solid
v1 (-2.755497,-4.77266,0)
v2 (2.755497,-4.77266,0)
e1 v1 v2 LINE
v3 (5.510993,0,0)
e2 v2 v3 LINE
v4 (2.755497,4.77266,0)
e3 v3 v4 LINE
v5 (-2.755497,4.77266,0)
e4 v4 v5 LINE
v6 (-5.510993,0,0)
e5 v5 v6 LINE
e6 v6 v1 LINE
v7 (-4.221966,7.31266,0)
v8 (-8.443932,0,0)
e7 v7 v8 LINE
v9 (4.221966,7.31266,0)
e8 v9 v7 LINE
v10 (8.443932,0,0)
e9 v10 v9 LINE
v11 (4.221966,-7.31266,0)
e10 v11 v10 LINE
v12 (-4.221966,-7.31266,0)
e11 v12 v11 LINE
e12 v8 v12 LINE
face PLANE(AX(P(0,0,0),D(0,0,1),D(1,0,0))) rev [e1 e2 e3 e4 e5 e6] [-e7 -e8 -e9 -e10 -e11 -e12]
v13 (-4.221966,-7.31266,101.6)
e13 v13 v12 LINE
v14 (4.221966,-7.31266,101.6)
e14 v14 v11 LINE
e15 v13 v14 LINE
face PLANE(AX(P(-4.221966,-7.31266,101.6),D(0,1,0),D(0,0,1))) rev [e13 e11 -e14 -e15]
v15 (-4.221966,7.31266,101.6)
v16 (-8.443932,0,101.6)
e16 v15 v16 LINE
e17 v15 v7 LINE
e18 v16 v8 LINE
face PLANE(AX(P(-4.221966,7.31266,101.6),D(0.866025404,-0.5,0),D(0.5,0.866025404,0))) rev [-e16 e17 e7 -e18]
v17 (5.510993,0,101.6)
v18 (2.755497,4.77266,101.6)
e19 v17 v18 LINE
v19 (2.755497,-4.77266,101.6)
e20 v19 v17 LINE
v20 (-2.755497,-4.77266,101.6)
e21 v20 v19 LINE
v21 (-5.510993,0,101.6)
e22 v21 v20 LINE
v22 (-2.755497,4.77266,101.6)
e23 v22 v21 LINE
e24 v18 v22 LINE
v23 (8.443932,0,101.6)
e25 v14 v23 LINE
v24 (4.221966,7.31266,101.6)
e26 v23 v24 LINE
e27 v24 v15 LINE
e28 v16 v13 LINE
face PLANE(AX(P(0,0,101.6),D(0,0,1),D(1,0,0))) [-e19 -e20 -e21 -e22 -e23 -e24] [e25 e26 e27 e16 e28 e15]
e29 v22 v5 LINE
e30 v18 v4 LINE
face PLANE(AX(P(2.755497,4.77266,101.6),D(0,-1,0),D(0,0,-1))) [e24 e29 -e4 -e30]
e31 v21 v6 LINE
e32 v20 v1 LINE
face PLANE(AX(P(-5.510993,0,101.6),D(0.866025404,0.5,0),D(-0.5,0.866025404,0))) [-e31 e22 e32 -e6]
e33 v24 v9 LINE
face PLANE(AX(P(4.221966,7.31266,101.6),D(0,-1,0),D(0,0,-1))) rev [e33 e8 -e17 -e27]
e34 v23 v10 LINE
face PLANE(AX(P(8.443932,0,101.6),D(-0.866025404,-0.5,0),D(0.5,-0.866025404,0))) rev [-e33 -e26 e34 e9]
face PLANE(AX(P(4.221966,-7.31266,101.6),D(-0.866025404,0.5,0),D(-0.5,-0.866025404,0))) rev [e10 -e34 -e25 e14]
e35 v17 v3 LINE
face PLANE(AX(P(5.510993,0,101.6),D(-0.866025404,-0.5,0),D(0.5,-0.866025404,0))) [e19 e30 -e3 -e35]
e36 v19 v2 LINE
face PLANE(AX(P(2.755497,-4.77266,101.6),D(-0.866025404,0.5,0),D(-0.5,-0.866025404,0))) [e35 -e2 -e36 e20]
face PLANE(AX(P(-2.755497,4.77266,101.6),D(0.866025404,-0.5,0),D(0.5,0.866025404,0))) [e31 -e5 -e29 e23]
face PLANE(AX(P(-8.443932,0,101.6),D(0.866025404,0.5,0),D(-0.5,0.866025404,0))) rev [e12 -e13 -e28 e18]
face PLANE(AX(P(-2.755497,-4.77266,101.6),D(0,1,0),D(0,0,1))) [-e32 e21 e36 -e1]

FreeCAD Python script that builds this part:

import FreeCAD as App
import Part
import Sketcher
Q = App.Units.Quantity


def add_polygon(sketch, points):
    """Adds a closed chain of lines whose ends are joined by coincident constraints."""
    first, n = sketch.GeometryCount, len(points)
    for a, b in zip(points, points[1:] + points[:1]):
        sketch.addGeometry(Part.LineSegment(App.Vector(*a, 0), App.Vector(*b, 0)), False)
    for i in range(n):
        sketch.addConstraint(Sketcher.Constraint("Coincident", first + i, 2, first + (i + 1) % n, 1))

doc = App.newDocument("Part")
body = doc.addObject("PartDesign::Body", "Body")

# Sketch on XY plane
sketch1 = body.newObject("Sketcher::SketchObject", "Sketch")
sketch1.AttachmentSupport = (doc.getObject("XY_Plane"), [""])
sketch1.MapMode = "FlatFace"
add_polygon(sketch1, [(-8, 0), (-4, -7), (4, -7), (8, 0), (4, 7), (-4, 7)])  # lines 0-5
add_polygon(sketch1, [(-3, -5), (-6, 0), (-3, 5), (3, 5), (6, 0), (3, -5)])  # lines 6-11
sketch1.addConstraint([
    Sketcher.Constraint("Horizontal", 1),
    Sketcher.Constraint("Horizontal", 4),
    Sketcher.Constraint("Horizontal", 8),
    Sketcher.Constraint("Horizontal", 11),
    Sketcher.Constraint("Symmetric", 0, 2, 3, 2, -1, 1),
    Sketcher.Constraint("Symmetric", 2, 2, 5, 2, -1, 1),
    Sketcher.Constraint("Symmetric", 6, 2, 9, 2, -1, 1),
    Sketcher.Constraint("Symmetric", 7, 2, 10, 2, -1, 1),
    Sketcher.Constraint("PointOnObject", 2, 2, -1),
    Sketcher.Constraint("PointOnObject", 6, 2, -1),
    Sketcher.Constraint("Parallel", 2, 5),
    Sketcher.Constraint("Parallel", 3, 6),
    Sketcher.Constraint("Parallel", 5, 7),
    Sketcher.Constraint("Parallel", 6, 9),
    Sketcher.Constraint("Vertical", 1, 2, 3, 2),
    Sketcher.Constraint("Angle", 0, Q("-60 deg")),
    Sketcher.Constraint("DistanceY", 7, 2, 4, 2, Q("0.1 in")),
    Sketcher.Constraint("DistanceY", 0, 2, -1, 1, Q("0.2879 in")),
    Sketcher.Constraint("DistanceX", 0, 2, 2, 2, 12.665899),
    Sketcher.Constraint("DistanceX", 8, 1, 8, 2, 5.510993),
])
pad1 = body.newObject("PartDesign::Pad", "Pad")
pad1.Profile = sketch1
pad1.Length = Q("4 in")

doc.recompute()
